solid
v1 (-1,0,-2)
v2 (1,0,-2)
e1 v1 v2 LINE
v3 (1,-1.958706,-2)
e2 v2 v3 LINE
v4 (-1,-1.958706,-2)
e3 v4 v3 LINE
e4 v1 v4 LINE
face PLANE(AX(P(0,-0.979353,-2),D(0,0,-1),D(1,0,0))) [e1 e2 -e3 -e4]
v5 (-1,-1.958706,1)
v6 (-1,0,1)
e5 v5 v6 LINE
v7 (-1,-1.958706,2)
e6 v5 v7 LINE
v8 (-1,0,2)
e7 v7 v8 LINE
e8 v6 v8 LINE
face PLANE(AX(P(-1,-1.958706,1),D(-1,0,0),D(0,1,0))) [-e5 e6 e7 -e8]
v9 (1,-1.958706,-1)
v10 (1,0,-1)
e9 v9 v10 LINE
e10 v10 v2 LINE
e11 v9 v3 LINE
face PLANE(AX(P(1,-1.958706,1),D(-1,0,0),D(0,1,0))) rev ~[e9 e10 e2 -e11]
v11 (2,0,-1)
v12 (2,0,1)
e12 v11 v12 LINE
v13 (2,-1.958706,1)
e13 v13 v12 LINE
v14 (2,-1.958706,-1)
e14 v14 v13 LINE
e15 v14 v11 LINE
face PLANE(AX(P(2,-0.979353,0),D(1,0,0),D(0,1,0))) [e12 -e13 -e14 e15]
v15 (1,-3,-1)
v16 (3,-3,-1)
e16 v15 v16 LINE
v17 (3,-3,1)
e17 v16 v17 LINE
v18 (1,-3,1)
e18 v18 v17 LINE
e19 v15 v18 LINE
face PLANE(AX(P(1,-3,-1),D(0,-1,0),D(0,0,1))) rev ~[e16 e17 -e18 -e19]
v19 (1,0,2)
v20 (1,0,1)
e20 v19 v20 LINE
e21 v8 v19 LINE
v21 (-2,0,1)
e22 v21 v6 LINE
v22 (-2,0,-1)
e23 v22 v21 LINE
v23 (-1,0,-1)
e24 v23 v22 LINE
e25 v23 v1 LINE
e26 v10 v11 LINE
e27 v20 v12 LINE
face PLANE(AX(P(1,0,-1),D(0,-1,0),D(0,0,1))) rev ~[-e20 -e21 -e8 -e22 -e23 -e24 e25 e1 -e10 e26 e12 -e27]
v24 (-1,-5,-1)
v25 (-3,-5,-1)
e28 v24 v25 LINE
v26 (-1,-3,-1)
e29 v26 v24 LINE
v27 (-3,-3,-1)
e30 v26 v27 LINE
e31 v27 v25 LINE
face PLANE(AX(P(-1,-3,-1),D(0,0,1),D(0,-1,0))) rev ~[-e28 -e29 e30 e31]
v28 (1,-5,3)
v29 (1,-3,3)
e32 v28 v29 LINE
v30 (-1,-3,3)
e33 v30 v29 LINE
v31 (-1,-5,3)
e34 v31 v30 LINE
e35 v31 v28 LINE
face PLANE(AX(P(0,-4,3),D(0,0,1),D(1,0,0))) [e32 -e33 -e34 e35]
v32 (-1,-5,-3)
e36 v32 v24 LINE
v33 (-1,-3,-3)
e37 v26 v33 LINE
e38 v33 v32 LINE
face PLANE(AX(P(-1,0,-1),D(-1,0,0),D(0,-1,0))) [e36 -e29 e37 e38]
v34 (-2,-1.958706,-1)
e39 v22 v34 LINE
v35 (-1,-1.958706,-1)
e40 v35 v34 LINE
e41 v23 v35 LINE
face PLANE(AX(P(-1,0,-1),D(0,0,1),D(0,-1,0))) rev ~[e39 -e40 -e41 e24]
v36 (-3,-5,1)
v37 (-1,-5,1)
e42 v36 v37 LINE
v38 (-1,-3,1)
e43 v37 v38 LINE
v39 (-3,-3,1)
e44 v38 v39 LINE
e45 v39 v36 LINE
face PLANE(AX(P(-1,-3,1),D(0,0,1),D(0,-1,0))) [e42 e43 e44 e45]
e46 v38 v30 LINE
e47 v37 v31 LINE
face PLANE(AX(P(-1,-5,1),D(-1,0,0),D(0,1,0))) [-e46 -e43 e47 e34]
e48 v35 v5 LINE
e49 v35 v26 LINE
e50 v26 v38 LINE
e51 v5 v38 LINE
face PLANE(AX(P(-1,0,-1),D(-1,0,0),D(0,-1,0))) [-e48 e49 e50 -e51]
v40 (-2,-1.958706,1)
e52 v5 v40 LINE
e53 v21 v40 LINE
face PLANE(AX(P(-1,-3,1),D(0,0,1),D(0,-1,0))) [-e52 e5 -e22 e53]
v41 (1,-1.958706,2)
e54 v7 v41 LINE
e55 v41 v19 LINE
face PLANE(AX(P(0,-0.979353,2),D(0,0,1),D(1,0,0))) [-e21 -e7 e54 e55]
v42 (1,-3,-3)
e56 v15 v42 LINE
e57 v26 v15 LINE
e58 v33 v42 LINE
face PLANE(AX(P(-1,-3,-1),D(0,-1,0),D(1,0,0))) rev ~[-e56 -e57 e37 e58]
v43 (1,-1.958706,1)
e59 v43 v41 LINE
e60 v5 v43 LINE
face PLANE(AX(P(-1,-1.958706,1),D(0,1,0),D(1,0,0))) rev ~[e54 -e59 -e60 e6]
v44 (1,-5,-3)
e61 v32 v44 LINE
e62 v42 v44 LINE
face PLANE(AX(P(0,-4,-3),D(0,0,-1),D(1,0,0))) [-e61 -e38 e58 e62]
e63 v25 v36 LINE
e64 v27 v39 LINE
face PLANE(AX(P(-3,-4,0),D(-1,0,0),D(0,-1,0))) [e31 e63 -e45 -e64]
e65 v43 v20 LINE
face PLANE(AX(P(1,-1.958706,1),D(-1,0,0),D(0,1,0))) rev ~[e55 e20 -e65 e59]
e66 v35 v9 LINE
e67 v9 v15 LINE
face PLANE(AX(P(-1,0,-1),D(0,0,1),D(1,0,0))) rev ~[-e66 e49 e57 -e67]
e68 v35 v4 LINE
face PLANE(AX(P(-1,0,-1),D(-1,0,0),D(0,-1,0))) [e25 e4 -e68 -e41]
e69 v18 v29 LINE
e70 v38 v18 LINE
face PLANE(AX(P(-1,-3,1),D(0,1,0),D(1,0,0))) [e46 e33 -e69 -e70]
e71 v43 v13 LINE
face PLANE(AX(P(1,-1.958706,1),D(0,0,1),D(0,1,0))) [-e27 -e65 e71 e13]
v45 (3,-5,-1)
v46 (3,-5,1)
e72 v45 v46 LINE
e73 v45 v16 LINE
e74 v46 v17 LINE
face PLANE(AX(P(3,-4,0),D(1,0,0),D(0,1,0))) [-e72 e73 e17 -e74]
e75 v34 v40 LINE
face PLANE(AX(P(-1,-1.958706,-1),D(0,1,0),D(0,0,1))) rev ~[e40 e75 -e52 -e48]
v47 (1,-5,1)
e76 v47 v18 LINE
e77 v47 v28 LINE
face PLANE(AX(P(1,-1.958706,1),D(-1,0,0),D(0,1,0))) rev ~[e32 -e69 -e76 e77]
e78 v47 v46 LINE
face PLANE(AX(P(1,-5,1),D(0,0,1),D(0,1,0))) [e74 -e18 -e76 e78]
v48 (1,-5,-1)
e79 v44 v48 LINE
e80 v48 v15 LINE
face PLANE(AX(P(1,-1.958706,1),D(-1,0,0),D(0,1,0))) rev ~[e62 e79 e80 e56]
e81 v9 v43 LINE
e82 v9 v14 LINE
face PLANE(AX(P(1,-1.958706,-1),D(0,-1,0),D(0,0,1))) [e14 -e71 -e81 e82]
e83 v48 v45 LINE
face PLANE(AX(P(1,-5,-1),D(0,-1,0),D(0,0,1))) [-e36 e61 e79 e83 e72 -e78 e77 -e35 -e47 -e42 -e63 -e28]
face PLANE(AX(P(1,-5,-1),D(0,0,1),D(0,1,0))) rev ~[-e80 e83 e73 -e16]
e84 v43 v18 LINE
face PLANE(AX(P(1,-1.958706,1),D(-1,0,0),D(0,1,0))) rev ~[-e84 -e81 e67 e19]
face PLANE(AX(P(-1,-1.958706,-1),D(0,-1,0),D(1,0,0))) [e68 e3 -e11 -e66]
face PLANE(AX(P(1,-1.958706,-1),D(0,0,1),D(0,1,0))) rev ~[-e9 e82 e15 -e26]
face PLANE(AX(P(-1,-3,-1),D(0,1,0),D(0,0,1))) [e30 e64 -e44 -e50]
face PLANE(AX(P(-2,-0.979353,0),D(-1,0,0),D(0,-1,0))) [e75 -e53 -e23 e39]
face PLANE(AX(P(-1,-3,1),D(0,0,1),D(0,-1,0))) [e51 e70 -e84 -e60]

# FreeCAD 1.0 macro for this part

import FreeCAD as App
import Part
import Sketcher
Q = App.Units.Quantity

doc = App.newDocument("Part")
params = doc.addObject("Spreadsheet::Sheet", "Params")
for row, (alias, value) in enumerate([
    ("sketch1_width", "2 mm"),
    ("pad1_length", "5 mm"),
    ("sketch2_width", "2 mm"),
    ("pad2_length", "2 mm"),
    ("sketch3_width", "2 mm"),
    ("pad3_length", "1 mm"),
    ("sketch4_height", "2 mm"),
    ("pad4_length", "1 mm"),
    ("sketch5_width", "2 mm"),
    ("pad5_length", "2 mm"),
    ("sketch6_width", "2 mm"),
    ("pad6_length", "2 mm"),
    ("sketch7_width", "2 mm"),
    ("pad7_length", "1 mm"),
    ("sketch8_width", "2 mm"),
    ("pad8_length", "2 mm"),
    ("sketch9_height", "2 mm"),
    ("pad9_length", "1 mm"),
], start=1):
    params.set(f"A{row}", alias)
    params.set(f"B{row}", "=" + value)
    params.setAlias(f"B{row}", alias)

body = doc.addObject("PartDesign::Body", "Body")

sketch1 = body.newObject("Sketcher::SketchObject", "Sketch")
sketch1.AttachmentSupport = (doc.getObject("XZ_Plane"), [""])
sketch1.MapMode = "FlatFace"
sketch1.addGeometry(Part.LineSegment(App.Vector(-1, 1, 0), App.Vector(-1, -1, 0)), False)
sketch1.addGeometry(Part.LineSegment(App.Vector(-1, -1, 0), App.Vector(1, -1, 0)), False)
sketch1.addGeometry(Part.LineSegment(App.Vector(1, -1, 0), App.Vector(1, 1, 0)), False)
sketch1.addGeometry(Part.LineSegment(App.Vector(1, 1, 0), App.Vector(-1, 1, 0)), False)
sketch1.addConstraint(Sketcher.Constraint("Coincident", 0, 2, 1, 1))
sketch1.addConstraint(Sketcher.Constraint("Coincident", 1, 2, 2, 1))
sketch1.addConstraint(Sketcher.Constraint("Coincident", 2, 2, 3, 1))
sketch1.addConstraint(Sketcher.Constraint("Coincident", 3, 2, 0, 1))
sketch1.addConstraint(Sketcher.Constraint("Vertical", 0))
sketch1.addConstraint(Sketcher.Constraint("Horizontal", 1))
sketch1.addConstraint(Sketcher.Constraint("Vertical", 2))
sketch1.addConstraint(Sketcher.Constraint("Horizontal", 3))
sketch1.addConstraint(Sketcher.Constraint("Symmetric", 0, 2, 2, 2, -1, 1))
sketch1.addConstraint(Sketcher.Constraint("Equal", 3, 0))
sketch1.addConstraint(Sketcher.Constraint("DistanceX", 1, 1, 1, 2, Q("2 mm")))
sketch1.setExpression("Constraints[10]", "Params.sketch1_width")
pad1 = body.newObject("PartDesign::Pad", "Pad")
pad1.Profile = sketch1
pad1.setExpression("Length", "Params.pad1_length")

sketch2 = body.newObject("Sketcher::SketchObject", "Sketch001")
sketch2.AttachmentSupport = (doc.getObject("XY_Plane"), [""])
sketch2.MapMode = "FlatFace"
sketch2.AttachmentOffset = App.Placement(App.Vector(0, 0, -1), App.Rotation())
sketch2.addGeometry(Part.LineSegment(App.Vector(-1, -5, 0), App.Vector(-1, -3, 0)), False)
sketch2.addGeometry(Part.LineSegment(App.Vector(-1, -3, 0), App.Vector(1, -3, 0)), False)
sketch2.addGeometry(Part.LineSegment(App.Vector(1, -3, 0), App.Vector(1, -5, 0)), False)
sketch2.addGeometry(Part.LineSegment(App.Vector(1, -5, 0), App.Vector(-1, -5, 0)), False)
sketch2.addConstraint(Sketcher.Constraint("Coincident", 0, 2, 1, 1))
sketch2.addConstraint(Sketcher.Constraint("Coincident", 1, 2, 2, 1))
sketch2.addConstraint(Sketcher.Constraint("Coincident", 2, 2, 3, 1))
sketch2.addConstraint(Sketcher.Constraint("Coincident", 3, 2, 0, 1))
sketch2.addConstraint(Sketcher.Constraint("Vertical", 0))
sketch2.addConstraint(Sketcher.Constraint("Horizontal", 1))
sketch2.addConstraint(Sketcher.Constraint("Vertical", 2))
sketch2.addConstraint(Sketcher.Constraint("Horizontal", 3))
sketch2.addConstraint(Sketcher.Constraint("Equal", 3, 0))
sketch2.addConstraint(Sketcher.Constraint("DistanceX", 1, 1, 1, 2, Q("2 mm")))
sketch2.addConstraint(Sketcher.Constraint("DistanceX", 0, 2, -1, 1, Q("1 mm")))
sketch2.addConstraint(Sketcher.Constraint("DistanceY", 0, 2, -1, 1, Q("3 mm")))
sketch2.setExpression("Constraints[9]", "Params.sketch2_width")
pad2 = body.newObject("PartDesign::Pad", "Pad001")
pad2.Profile = sketch2
pad2.setExpression("Length", "Params.pad2_length")
pad2.Reversed = True

sketch3 = body.newObject("Sketcher::SketchObject", "Sketch002")
sketch3.AttachmentSupport = (doc.getObject("XY_Plane"), [""])
sketch3.MapMode = "FlatFace"
sketch3.AttachmentOffset = App.Placement(App.Vector(0, 0, -1), App.Rotation())
sketch3.addGeometry(Part.LineSegment(App.Vector(-1, -1.958706, 0), App.Vector(-1, 0, 0)), False)
sketch3.addGeometry(Part.LineSegment(App.Vector(-1, 0, 0), App.Vector(1, 0, 0)), False)
sketch3.addGeometry(Part.LineSegment(App.Vector(1, 0, 0), App.Vector(1, -1.958706, 0)), False)
sketch3.addGeometry(Part.LineSegment(App.Vector(1, -1.958706, 0), App.Vector(-1, -1.958706, 0)), False)
sketch3.addConstraint(Sketcher.Constraint("Coincident", 0, 2, 1, 1))
sketch3.addConstraint(Sketcher.Constraint("Coincident", 1, 2, 2, 1))
sketch3.addConstraint(Sketcher.Constraint("Coincident", 2, 2, 3, 1))
sketch3.addConstraint(Sketcher.Constraint("Coincident", 3, 2, 0, 1))
sketch3.addConstraint(Sketcher.Constraint("Vertical", 0))
sketch3.addConstraint(Sketcher.Constraint("Horizontal", 1))
sketch3.addConstraint(Sketcher.Constraint("Vertical", 2))
sketch3.addConstraint(Sketcher.Constraint("Horizontal", 3))
sketch3.addConstraint(Sketcher.Constraint("Symmetric", 0, 2, 1, 2, -1, 1))
sketch3.addConstraint(Sketcher.Constraint("DistanceX", 1, 1, 1, 2, Q("2 mm")))
sketch3.addConstraint(Sketcher.Constraint("DistanceY", 0, 1, 0, 2, Q("1.958706 mm")))
sketch3.setExpression("Constraints[9]", "Params.sketch3_width")
pad3 = body.newObject("PartDesign::Pad", "Pad002")
pad3.Profile = sketch3
pad3.setExpression("Length", "Params.pad3_length")
pad3.Reversed = True

sketch4 = body.newObject("Sketcher::SketchObject", "Sketch003")
sketch4.AttachmentSupport = (doc.getObject("YZ_Plane"), [""])
sketch4.MapMode = "FlatFace"
sketch4.AttachmentOffset = App.Placement(App.Vector(0, 0, -1), App.Rotation())
sketch4.addGeometry(Part.LineSegment(App.Vector(0, 1, 0), App.Vector(0, -1, 0)), False)
sketch4.addGeometry(Part.LineSegment(App.Vector(0, -1, 0), App.Vector(-1.958706, -1, 0)), False)
sketch4.addGeometry(Part.LineSegment(App.Vector(-1.958706, -1, 0), App.Vector(-1.958706, 1, 0)), False)
sketch4.addGeometry(Part.LineSegment(App.Vector(-1.958706, 1, 0), App.Vector(0, 1, 0)), False)
sketch4.addConstraint(Sketcher.Constraint("Coincident", 0, 2, 1, 1))
sketch4.addConstraint(Sketcher.Constraint("Coincident", 1, 2, 2, 1))
sketch4.addConstraint(Sketcher.Constraint("Coincident", 2, 2, 3, 1))
sketch4.addConstraint(Sketcher.Constraint("Coincident", 3, 2, 0, 1))
sketch4.addConstraint(Sketcher.Constraint("Vertical", 0))
sketch4.addConstraint(Sketcher.Constraint("Horizontal", 1))
sketch4.addConstraint(Sketcher.Constraint("Vertical", 2))
sketch4.addConstraint(Sketcher.Constraint("Horizontal", 3))
sketch4.addConstraint(Sketcher.Constraint("Symmetric", 0, 2, 3, 2, -1, 1))
sketch4.addConstraint(Sketcher.Constraint("DistanceY", 0, 2, 0, 1, Q("2 mm")))
sketch4.addConstraint(Sketcher.Constraint("DistanceX", 1, 2, 1, 1, Q("1.958706 mm")))
sketch4.setExpression("Constraints[9]", "Params.sketch4_height")
pad4 = body.newObject("PartDesign::Pad", "Pad003")
pad4.Profile = sketch4
pad4.setExpression("Length", "Params.pad4_length")
pad4.Reversed = True

sketch5 = body.newObject("Sketcher::SketchObject", "Sketch004")
sketch5.AttachmentSupport = (doc.getObject("YZ_Plane"), [""])
sketch5.MapMode = "FlatFace"
sketch5.AttachmentOffset = App.Placement(App.Vector(0, 0, -1), App.Rotation())
sketch5.addGeometry(Part.LineSegment(App.Vector(-3, 1, 0), App.Vector(-3, -1, 0)), False)
sketch5.addGeometry(Part.LineSegment(App.Vector(-3, -1, 0), App.Vector(-5, -1, 0)), False)
sketch5.addGeometry(Part.LineSegment(App.Vector(-5, -1, 0), App.Vector(-5, 1, 0)), False)
sketch5.addGeometry(Part.LineSegment(App.Vector(-5, 1, 0), App.Vector(-3, 1, 0)), False)
sketch5.addConstraint(Sketcher.Constraint("Coincident", 0, 2, 1, 1))
sketch5.addConstraint(Sketcher.Constraint("Coincident", 1, 2, 2, 1))
sketch5.addConstraint(Sketcher.Constraint("Coincident", 2, 2, 3, 1))
sketch5.addConstraint(Sketcher.Constraint("Coincident", 3, 2, 0, 1))
sketch5.addConstraint(Sketcher.Constraint("Vertical", 0))
sketch5.addConstraint(Sketcher.Constraint("Horizontal", 1))
sketch5.addConstraint(Sketcher.Constraint("Vertical", 2))
sketch5.addConstraint(Sketcher.Constraint("Horizontal", 3))
sketch5.addConstraint(Sketcher.Constraint("Equal", 3, 0))
sketch5.addConstraint(Sketcher.Constraint("DistanceX", 1, 2, 1, 1, Q("2 mm")))
sketch5.addConstraint(Sketcher.Constraint("DistanceX", 0, 2, -1, 1, Q("3 mm")))
sketch5.addConstraint(Sketcher.Constraint("DistanceY", 0, 2, -1, 1, Q("1 mm")))
sketch5.setExpression("Constraints[9]", "Params.sketch5_width")
pad5 = body.newObject("PartDesign::Pad", "Pad004")
pad5.Profile = sketch5
pad5.setExpression("Length", "Params.pad5_length")
pad5.Reversed = True

sketch6 = body.newObject("Sketcher::SketchObject", "Sketch005")
sketch6.AttachmentSupport = (doc.getObject("XY_Plane"), [""])
sketch6.MapMode = "FlatFace"
sketch6.AttachmentOffset = App.Placement(App.Vector(0, 0, 1), App.Rotation())
sketch6.addGeometry(Part.LineSegment(App.Vector(-1, -3, 0), App.Vector(-1, -5, 0)), False)
sketch6.addGeometry(Part.LineSegment(App.Vector(-1, -5, 0), App.Vector(1, -5, 0)), False)
sketch6.addGeometry(Part.LineSegment(App.Vector(1, -5, 0), App.Vector(1, -3, 0)), False)
sketch6.addGeometry(Part.LineSegment(App.Vector(1, -3, 0), App.Vector(-1, -3, 0)), False)
sketch6.addConstraint(Sketcher.Constraint("Coincident", 0, 2, 1, 1))
sketch6.addConstraint(Sketcher.Constraint("Coincident", 1, 2, 2, 1))
sketch6.addConstraint(Sketcher.Constraint("Coincident", 2, 2, 3, 1))
sketch6.addConstraint(Sketcher.Constraint("Coincident", 3, 2, 0, 1))
sketch6.addConstraint(Sketcher.Constraint("Vertical", 0))
sketch6.addConstraint(Sketcher.Constraint("Horizontal", 1))
sketch6.addConstraint(Sketcher.Constraint("Vertical", 2))
sketch6.addConstraint(Sketcher.Constraint("Horizontal", 3))
sketch6.addConstraint(Sketcher.Constraint("Equal", 3, 0))
sketch6.addConstraint(Sketcher.Constraint("DistanceX", 1, 1, 1, 2, Q("2 mm")))
sketch6.addConstraint(Sketcher.Constraint("DistanceX", 0, 2, -1, 1, Q("1 mm")))
sketch6.addConstraint(Sketcher.Constraint("DistanceY", 0, 2, -1, 1, Q("5 mm")))
sketch6.setExpression("Constraints[9]", "Params.sketch6_width")
pad6 = body.newObject("PartDesign::Pad", "Pad005")
pad6.Profile = sketch6
pad6.setExpression("Length", "Params.pad6_length")

sketch7 = body.newObject("Sketcher::SketchObject", "Sketch006")
sketch7.AttachmentSupport = (doc.getObject("XY_Plane"), [""])
sketch7.MapMode = "FlatFace"
sketch7.AttachmentOffset = App.Placement(App.Vector(0, 0, 1), App.Rotation())
sketch7.addGeometry(Part.LineSegment(App.Vector(-1, 0, 0), App.Vector(-1, -1.958706, 0)), False)
sketch7.addGeometry(Part.LineSegment(App.Vector(-1, -1.958706, 0), App.Vector(1, -1.958706, 0)), False)
sketch7.addGeometry(Part.LineSegment(App.Vector(1, -1.958706, 0), App.Vector(1, 0, 0)), False)
sketch7.addGeometry(Part.LineSegment(App.Vector(1, 0, 0), App.Vector(-1, 0, 0)), False)
sketch7.addConstraint(Sketcher.Constraint("Coincident", 0, 2, 1, 1))
sketch7.addConstraint(Sketcher.Constraint("Coincident", 1, 2, 2, 1))
sketch7.addConstraint(Sketcher.Constraint("Coincident", 2, 2, 3, 1))
sketch7.addConstraint(Sketcher.Constraint("Coincident", 3, 2, 0, 1))
sketch7.addConstraint(Sketcher.Constraint("Vertical", 0))
sketch7.addConstraint(Sketcher.Constraint("Horizontal", 1))
sketch7.addConstraint(Sketcher.Constraint("Vertical", 2))
sketch7.addConstraint(Sketcher.Constraint("Horizontal", 3))
sketch7.addConstraint(Sketcher.Constraint("Symmetric", 2, 2, 3, 2, -1, 1))
sketch7.addConstraint(Sketcher.Constraint("DistanceX", 1, 1, 1, 2, Q("2 mm")))
sketch7.addConstraint(Sketcher.Constraint("DistanceY", 0, 2, 0, 1, Q("1.958706 mm")))
sketch7.setExpression("Constraints[9]", "Params.sketch7_width")
pad7 = body.newObject("PartDesign::Pad", "Pad006")
pad7.Profile = sketch7
pad7.setExpression("Length", "Params.pad7_length")

sketch8 = body.newObject("Sketcher::SketchObject", "Sketch007")
sketch8.AttachmentSupport = (doc.getObject("YZ_Plane"), [""])
sketch8.MapMode = "FlatFace"
sketch8.AttachmentOffset = App.Placement(App.Vector(0, 0, 1), App.Rotation())
sketch8.addGeometry(Part.LineSegment(App.Vector(-5, 1, 0), App.Vector(-5, -1, 0)), False)
sketch8.addGeometry(Part.LineSegment(App.Vector(-5, -1, 0), App.Vector(-3, -1, 0)), False)
sketch8.addGeometry(Part.LineSegment(App.Vector(-3, -1, 0), App.Vector(-3, 1, 0)), False)
sketch8.addGeometry(Part.LineSegment(App.Vector(-3, 1, 0), App.Vector(-5, 1, 0)), False)
sketch8.addConstraint(Sketcher.Constraint("Coincident", 0, 2, 1, 1))
sketch8.addConstraint(Sketcher.Constraint("Coincident", 1, 2, 2, 1))
sketch8.addConstraint(Sketcher.Constraint("Coincident", 2, 2, 3, 1))
sketch8.addConstraint(Sketcher.Constraint("Coincident", 3, 2, 0, 1))
sketch8.addConstraint(Sketcher.Constraint("Vertical", 0))
sketch8.addConstraint(Sketcher.Constraint("Horizontal", 1))
sketch8.addConstraint(Sketcher.Constraint("Vertical", 2))
sketch8.addConstraint(Sketcher.Constraint("Horizontal", 3))
sketch8.addConstraint(Sketcher.Constraint("Equal", 3, 0))
sketch8.addConstraint(Sketcher.Constraint("DistanceX", 1, 1, 1, 2, Q("2 mm")))
sketch8.addConstraint(Sketcher.Constraint("DistanceX", 0, 2, -1, 1, Q("5 mm")))
sketch8.addConstraint(Sketcher.Constraint("DistanceY", 0, 2, -1, 1, Q("1 mm")))
sketch8.setExpression("Constraints[9]", "Params.sketch8_width")
pad8 = body.newObject("PartDesign::Pad", "Pad007")
pad8.Profile = sketch8
pad8.setExpression("Length", "Params.pad8_length")

sketch9 = body.newObject("Sketcher::SketchObject", "Sketch008")
sketch9.AttachmentSupport = (doc.getObject("YZ_Plane"), [""])
sketch9.MapMode = "FlatFace"
sketch9.AttachmentOffset = App.Placement(App.Vector(0, 0, 1), App.Rotation())
sketch9.addGeometry(Part.LineSegment(App.Vector(-1.958706, 1, 0), App.Vector(-1.958706, -1, 0)), False)
sketch9.addGeometry(Part.LineSegment(App.Vector(-1.958706, -1, 0), App.Vector(0, -1, 0)), False)
sketch9.addGeometry(Part.LineSegment(App.Vector(0, -1, 0), App.Vector(0, 1, 0)), False)
sketch9.addGeometry(Part.LineSegment(App.Vector(0, 1, 0), App.Vector(-1.958706, 1, 0)), False)
sketch9.addConstraint(Sketcher.Constraint("Coincident", 0, 2, 1, 1))
sketch9.addConstraint(Sketcher.Constraint("Coincident", 1, 2, 2, 1))
sketch9.addConstraint(Sketcher.Constraint("Coincident", 2, 2, 3, 1))
sketch9.addConstraint(Sketcher.Constraint("Coincident", 3, 2, 0, 1))
sketch9.addConstraint(Sketcher.Constraint("Vertical", 0))
sketch9.addConstraint(Sketcher.Constraint("Horizontal", 1))
sketch9.addConstraint(Sketcher.Constraint("Vertical", 2))
sketch9.addConstraint(Sketcher.Constraint("Horizontal", 3))
sketch9.addConstraint(Sketcher.Constraint("Symmetric", 1, 2, 2, 2, -1, 1))
sketch9.addConstraint(Sketcher.Constraint("DistanceY", 0, 2, 0, 1, Q("2 mm")))
sketch9.addConstraint(Sketcher.Constraint("DistanceX", 1, 1, 1, 2, Q("1.958706 mm")))
sketch9.setExpression("Constraints[9]", "Params.sketch9_height")
pad9 = body.newObject("PartDesign::Pad", "Pad008")
pad9.Profile = sketch9
pad9.setExpression("Length", "Params.pad9_length")

doc.recompute()
